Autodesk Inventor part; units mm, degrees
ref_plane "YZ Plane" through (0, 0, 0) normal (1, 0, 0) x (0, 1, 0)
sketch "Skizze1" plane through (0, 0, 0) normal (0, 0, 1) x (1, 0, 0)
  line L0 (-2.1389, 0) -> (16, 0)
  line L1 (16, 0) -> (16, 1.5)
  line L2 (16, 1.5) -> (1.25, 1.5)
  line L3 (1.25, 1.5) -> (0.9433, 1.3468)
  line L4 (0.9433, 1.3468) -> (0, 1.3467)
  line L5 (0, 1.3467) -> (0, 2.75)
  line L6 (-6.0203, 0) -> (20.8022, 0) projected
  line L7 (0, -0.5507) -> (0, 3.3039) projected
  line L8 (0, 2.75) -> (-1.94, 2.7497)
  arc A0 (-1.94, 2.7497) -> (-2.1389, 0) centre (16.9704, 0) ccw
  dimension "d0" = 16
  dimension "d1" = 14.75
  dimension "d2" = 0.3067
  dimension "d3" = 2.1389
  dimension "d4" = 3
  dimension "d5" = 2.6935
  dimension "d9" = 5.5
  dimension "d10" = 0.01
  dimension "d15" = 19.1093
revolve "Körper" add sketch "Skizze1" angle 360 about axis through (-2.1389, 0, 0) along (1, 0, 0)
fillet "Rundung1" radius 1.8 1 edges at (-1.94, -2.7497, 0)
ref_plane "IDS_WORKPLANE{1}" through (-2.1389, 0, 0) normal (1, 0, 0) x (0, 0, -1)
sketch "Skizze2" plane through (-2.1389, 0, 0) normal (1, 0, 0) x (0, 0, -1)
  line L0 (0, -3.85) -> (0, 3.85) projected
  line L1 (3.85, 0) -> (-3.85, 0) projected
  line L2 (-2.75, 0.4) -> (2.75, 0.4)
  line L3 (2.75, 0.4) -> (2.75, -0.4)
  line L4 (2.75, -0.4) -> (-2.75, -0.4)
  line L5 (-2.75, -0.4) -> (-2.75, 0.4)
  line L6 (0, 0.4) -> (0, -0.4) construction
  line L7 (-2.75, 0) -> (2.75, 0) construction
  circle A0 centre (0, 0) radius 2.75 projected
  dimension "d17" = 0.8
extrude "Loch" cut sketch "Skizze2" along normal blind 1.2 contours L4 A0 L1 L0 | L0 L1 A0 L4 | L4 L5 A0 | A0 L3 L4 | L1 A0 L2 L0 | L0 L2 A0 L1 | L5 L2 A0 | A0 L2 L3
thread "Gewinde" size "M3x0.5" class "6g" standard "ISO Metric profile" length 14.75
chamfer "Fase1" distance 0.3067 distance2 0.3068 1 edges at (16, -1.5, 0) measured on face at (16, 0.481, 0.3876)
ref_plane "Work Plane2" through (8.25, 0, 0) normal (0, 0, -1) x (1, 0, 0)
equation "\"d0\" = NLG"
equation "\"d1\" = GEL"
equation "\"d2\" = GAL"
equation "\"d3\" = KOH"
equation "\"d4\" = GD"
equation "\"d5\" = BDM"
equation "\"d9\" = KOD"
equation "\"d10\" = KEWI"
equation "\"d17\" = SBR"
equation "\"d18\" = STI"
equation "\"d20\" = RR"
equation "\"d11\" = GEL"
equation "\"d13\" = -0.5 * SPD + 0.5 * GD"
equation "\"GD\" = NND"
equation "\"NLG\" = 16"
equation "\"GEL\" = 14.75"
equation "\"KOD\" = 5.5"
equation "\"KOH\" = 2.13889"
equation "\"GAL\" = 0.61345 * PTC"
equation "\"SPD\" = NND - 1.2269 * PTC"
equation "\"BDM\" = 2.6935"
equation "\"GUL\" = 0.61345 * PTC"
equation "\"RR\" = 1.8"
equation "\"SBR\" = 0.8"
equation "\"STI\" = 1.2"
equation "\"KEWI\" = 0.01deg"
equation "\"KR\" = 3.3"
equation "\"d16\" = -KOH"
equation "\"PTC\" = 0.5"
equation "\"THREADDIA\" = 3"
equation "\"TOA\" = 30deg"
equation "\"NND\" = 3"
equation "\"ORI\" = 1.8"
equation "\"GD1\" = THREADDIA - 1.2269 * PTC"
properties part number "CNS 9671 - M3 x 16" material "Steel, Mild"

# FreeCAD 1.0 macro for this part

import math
import FreeCAD as App
import Part
import Sketcher
Q = App.Units.Quantity


def edges_at(feature, points):
    """Names of the edges that pass closest to the given points."""
    edges = feature.Shape.Edges
    near = lambda p: min(range(len(edges)), key=lambda i: edges[i].distToShape(Part.Vertex(*p))[0])
    return sorted({f"Edge{near(p) + 1}" for p in points})

doc = App.newDocument("Part")
body = doc.addObject("PartDesign::Body", "Body")

# Sketch on XY plane
sketch1 = body.newObject("Sketcher::SketchObject", "Sketch")
sketch1.AttachmentSupport = (doc.getObject("XY_Plane"), [""])
sketch1.MapMode = "FlatFace"
sketch1.addGeometry([
    Part.ArcOfCircle(Part.Circle(App.Vector(16.98, 0, 0), App.Vector(0, 0, 1), 19.12), math.radians(171.73), math.radians(180)),  # 0
    Part.LineSegment(App.Vector(-2.14, 0, 0), App.Vector(16, 0, 0)),  # 1
    Part.LineSegment(App.Vector(16, 0, 0), App.Vector(16, 1.5, 0)),  # 2
    Part.LineSegment(App.Vector(16, 1.5, 0), App.Vector(1.25, 1.5, 0)),  # 3
    Part.LineSegment(App.Vector(1.25, 1.5, 0), App.Vector(0.94, 1.35, 0)),  # 4
    Part.LineSegment(App.Vector(0.94, 1.35, 0), App.Vector(0, 1.35, 0)),  # 5
    Part.LineSegment(App.Vector(0, 1.35, 0), App.Vector(0, 2.75, 0)),  # 6
    Part.LineSegment(App.Vector(0, 2.75, 0), App.Vector(-1.94, 2.75, 0)),  # 7
], False)
sketch1.addConstraint([
    Sketcher.Constraint("Coincident", 0, 2, 1, 1),
    Sketcher.Constraint("Coincident", 1, 2, 2, 1),
    Sketcher.Constraint("Coincident", 2, 2, 3, 1),
    Sketcher.Constraint("Coincident", 3, 2, 4, 1),
    Sketcher.Constraint("Coincident", 4, 2, 5, 1),
    Sketcher.Constraint("Coincident", 5, 2, 6, 1),
    Sketcher.Constraint("Coincident", 6, 2, 7, 1),
    Sketcher.Constraint("Coincident", 7, 2, 0, 1),
    Sketcher.Constraint("Horizontal", 1),
    Sketcher.Constraint("Vertical", 2),
    Sketcher.Constraint("Horizontal", 3),
    Sketcher.Constraint("Horizontal", 5),
    Sketcher.Constraint("Vertical", 6),
    Sketcher.Constraint("PointOnObject", 0, 2, -1),
    Sketcher.Constraint("PointOnObject", 5, 2, -2),
    Sketcher.Constraint("DistanceX", -1, 1, 1, 2, Q("16 mm")),
    Sketcher.Constraint("DistanceX", 3, 2, 3, 1, Q("14.75 mm")),
    Sketcher.Constraint("DistanceY", 2, 1, 2, 2, Q("1.5 mm")),
    Sketcher.Constraint("DistanceX", 0, 2, -1, 1, Q("2.139 mm")),
    Sketcher.Constraint("Angle", 7, Q("-179.9911 deg")),
    Sketcher.Constraint("Radius", 0, Q("19.1156 mm")),
    Sketcher.Constraint("DistanceX", 4, 2, 3, 2, Q("0.3067 mm")),
    Sketcher.Constraint("Distance", 7, Q("1.94 mm")),
    Sketcher.Constraint("DistanceY", -1, 1, 6, 2, Q("2.75 mm")),
    Sketcher.Constraint("DistanceY", 6, 1, 6, 2, Q("1.4033 mm")),
])
revolution = body.newObject("PartDesign::Revolution", "Revolution")
revolution.Profile = sketch1
revolution.ReferenceAxis = (sketch1, ["H_Axis"])
revolution.Angle = 360
doc.recompute()

fillet = body.newObject("PartDesign::Fillet", "Fillet")
fillet.Base = (revolution, edges_at(revolution, [(-1.94, -2.75, 0)]))
fillet.Radius = 1.8

# Sketch on YZ plane
sketch2 = body.newObject("Sketcher::SketchObject", "Sketch001")
sketch2.AttachmentSupport = (doc.getObject("YZ_Plane"), [""])
sketch2.MapMode = "FlatFace"
sketch2.AttachmentOffset = App.Placement(App.Vector(0, 0, -2.1389), App.Rotation())
sketch2.addGeometry([
    Part.LineSegment(App.Vector(-0.4, -2.8, 0), App.Vector(0.4, -2.8, 0)),
    Part.LineSegment(App.Vector(0.4, -2.8, 0), App.Vector(0.4, 2.8, 0)),
    Part.LineSegment(App.Vector(0.4, 2.8, 0), App.Vector(-0.4, 2.8, 0)),
    Part.LineSegment(App.Vector(-0.4, 2.8, 0), App.Vector(-0.4, -2.8, 0)),
], False)
sketch2.addConstraint([
    Sketcher.Constraint("Coincident", 0, 2, 1, 1),
    Sketcher.Constraint("Coincident", 1, 2, 2, 1),
    Sketcher.Constraint("Coincident", 2, 2, 3, 1),
    Sketcher.Constraint("Coincident", 3, 2, 0, 1),
    Sketcher.Constraint("Horizontal", 0),
    Sketcher.Constraint("Vertical", 1),
    Sketcher.Constraint("Horizontal", 2),
    Sketcher.Constraint("Vertical", 3),
    Sketcher.Constraint("Symmetric", 0, 2, 2, 2, -1, 1),
    Sketcher.Constraint("DistanceX", 0, 1, 0, 2, Q("0.8 mm")),
    Sketcher.Constraint("DistanceY", 1, 1, 1, 2, Q("5.5 mm")),
])
pocket1 = body.newObject("PartDesign::Pocket", "Pocket")
pocket1.Profile = sketch2
pocket1.Length = 1.2
pocket1.Reversed = True
doc.recompute()

chamfer = body.newObject("PartDesign::Chamfer", "Chamfer")
chamfer.Base = (pocket1, edges_at(pocket1, [(16, -1.5, 0)]))
chamfer.ChamferType = "Two distances"
chamfer.Size = 0.3067
chamfer.Size2 = 0.3068

doc.recompute()
